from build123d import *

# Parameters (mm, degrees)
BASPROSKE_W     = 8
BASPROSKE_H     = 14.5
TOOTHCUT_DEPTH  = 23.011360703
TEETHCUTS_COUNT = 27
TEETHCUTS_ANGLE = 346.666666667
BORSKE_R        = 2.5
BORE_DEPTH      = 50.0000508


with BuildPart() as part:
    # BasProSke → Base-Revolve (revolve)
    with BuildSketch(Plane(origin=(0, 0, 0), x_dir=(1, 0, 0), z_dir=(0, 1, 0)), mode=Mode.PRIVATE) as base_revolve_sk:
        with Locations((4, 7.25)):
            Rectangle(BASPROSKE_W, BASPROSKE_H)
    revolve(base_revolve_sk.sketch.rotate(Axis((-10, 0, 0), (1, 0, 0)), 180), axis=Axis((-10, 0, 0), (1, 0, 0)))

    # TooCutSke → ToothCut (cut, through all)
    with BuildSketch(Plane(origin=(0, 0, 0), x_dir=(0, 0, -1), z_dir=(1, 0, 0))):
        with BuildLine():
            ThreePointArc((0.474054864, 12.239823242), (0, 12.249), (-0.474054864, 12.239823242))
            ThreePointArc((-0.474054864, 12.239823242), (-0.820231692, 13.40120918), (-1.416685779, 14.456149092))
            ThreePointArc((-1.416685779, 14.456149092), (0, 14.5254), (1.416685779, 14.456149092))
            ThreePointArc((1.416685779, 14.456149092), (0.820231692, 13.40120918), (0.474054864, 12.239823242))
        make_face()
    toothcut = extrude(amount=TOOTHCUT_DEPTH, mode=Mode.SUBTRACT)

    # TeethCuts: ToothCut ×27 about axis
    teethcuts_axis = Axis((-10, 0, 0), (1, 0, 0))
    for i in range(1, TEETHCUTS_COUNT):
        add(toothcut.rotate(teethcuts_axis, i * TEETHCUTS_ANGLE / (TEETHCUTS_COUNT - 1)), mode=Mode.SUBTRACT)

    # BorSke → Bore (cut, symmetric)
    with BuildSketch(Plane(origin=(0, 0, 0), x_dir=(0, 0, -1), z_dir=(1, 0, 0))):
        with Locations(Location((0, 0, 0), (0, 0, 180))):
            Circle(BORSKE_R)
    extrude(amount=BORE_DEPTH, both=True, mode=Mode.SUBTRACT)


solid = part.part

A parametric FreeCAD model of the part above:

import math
import FreeCAD as App
import Part
import Sketcher
Q = App.Units.Quantity


def add_polygon(sketch, points):
    """Adds a closed chain of lines whose ends are joined by coincident constraints."""
    first, n = sketch.GeometryCount, len(points)
    for a, b in zip(points, points[1:] + points[:1]):
        sketch.addGeometry(Part.LineSegment(App.Vector(*a, 0), App.Vector(*b, 0)), False)
    for i in range(n):
        sketch.addConstraint(Sketcher.Constraint("Coincident", first + i, 2, first + (i + 1) % n, 1))

doc = App.newDocument("Part")
body = doc.addObject("PartDesign::Body", "Body")

# Sketch on XZ plane
sketch1 = body.newObject("Sketcher::SketchObject", "Sketch")
sketch1.AttachmentSupport = (doc.getObject("XZ_Plane"), [""])
sketch1.MapMode = "FlatFace"
add_polygon(sketch1, [(0, -14), (0, 0), (8, 0), (8, -14)])  # lines 0-3
sketch1.addConstraint(Sketcher.Constraint("Vertical", 0))
sketch1.addConstraint(Sketcher.Constraint("Horizontal", 1))
sketch1.addConstraint(Sketcher.Constraint("Vertical", 2))
sketch1.addConstraint(Sketcher.Constraint("Horizontal", 3))
sketch1.addConstraint(Sketcher.Constraint("Coincident", 0, 2, -1, 1))
sketch1.addConstraint(Sketcher.Constraint("DistanceX", 1, 1, 1, 2, Q("8 mm")))
sketch1.addConstraint(Sketcher.Constraint("DistanceY", 0, 1, 0, 2, Q("14.5 mm")))
revolution = body.newObject("PartDesign::Revolution", "Revolution")
revolution.Profile = sketch1
revolution.ReferenceAxis = (sketch1, ["H_Axis"])
revolution.Angle = 360

# Sketch on YZ plane
sketch2 = body.newObject("Sketcher::SketchObject", "Sketch001")
sketch2.AttachmentSupport = (doc.getObject("YZ_Plane"), [""])
sketch2.MapMode = "FlatFace"
sketch2.addGeometry(Part.ArcOfCircle(Part.Circle(App.Vector(0, 0, 0), App.Vector(0, 0, 1), 12.2), math.radians(-2.22), math.radians(2.22)), False)
sketch2.addGeometry(Part.ArcOfCircle(Part.Circle(App.Vector(11.3, -5.8, 0), App.Vector(0, 0, 1), 5.4), math.radians(54), math.radians(80)), False)
sketch2.addGeometry(Part.ArcOfCircle(Part.Circle(App.Vector(0, 0, 0), App.Vector(0, 0, 1), 14.5), math.radians(-5.6), math.radians(5.6)), False)
sketch2.addGeometry(Part.ArcOfCircle(Part.Circle(App.Vector(11.3, 5.8, 0), App.Vector(0, 0, 1), 5.4), math.radians(-80), math.radians(-54)), False)
sketch2.addConstraint(Sketcher.Constraint("Coincident", 0, 1, 1, 2))
sketch2.addConstraint(Sketcher.Constraint("Coincident", 1, 1, 2, 1))
sketch2.addConstraint(Sketcher.Constraint("Coincident", 2, 2, 3, 2))
sketch2.addConstraint(Sketcher.Constraint("Coincident", 3, 1, 0, 2))
sketch2.addConstraint(Sketcher.Constraint("Coincident", 0, 3, -1, 1))
sketch2.addConstraint(Sketcher.Constraint("Coincident", 2, 3, -1, 1))
sketch2.addConstraint(Sketcher.Constraint("Equal", 1, 3))
sketch2.addConstraint(Sketcher.Constraint("Symmetric", 1, 3, 3, 3, -1))
sketch2.addConstraint(Sketcher.Constraint("Radius", 1, Q("5.4 mm")))
sketch2.addConstraint(Sketcher.Constraint("Radius", 0, Q("12.249001 mm")))
sketch2.addConstraint(Sketcher.Constraint("Radius", 2, Q("14.5254 mm")))
sketch2.addConstraint(Sketcher.Constraint("DistanceY", 1, 3, -1, 1, Q("5.78946 mm")))
sketch2.addConstraint(Sketcher.Constraint("DistanceX", -1, 1, 1, 1, Q("14.456149 mm")))
pocket1 = body.newObject("PartDesign::Pocket", "Pocket")
pocket1.Profile = sketch2
pocket1.Type = "ThroughAll"
pocket1.Reversed = True
doc.recompute()

polarpattern = body.newObject("PartDesign::PolarPattern", "PolarPattern")
polarpattern.Originals = [pocket1]
polarpattern.Axis = (doc.getObject("X_Axis"), [""])
polarpattern.Angle = 360
polarpattern.Occurrences = 27
body.Tip = polarpattern

# Sketch on YZ plane
sketch3 = body.newObject("Sketcher::SketchObject", "Sketch002")
sketch3.AttachmentSupport = (doc.getObject("YZ_Plane"), [""])
sketch3.MapMode = "FlatFace"
sketch3.addGeometry(Part.Circle(App.Vector(0, 0, 0), App.Vector(0, 0, 1), 2.5), False)
sketch3.addConstraint(Sketcher.Constraint("Coincident", 0, 3, -1, 1))
sketch3.addConstraint(Sketcher.Constraint("Diameter", 0, Q("5 mm")))
pocket2 = body.newObject("PartDesign::Pocket", "Pocket001")
pocket2.Profile = sketch3
pocket2.Length = 100.000102
pocket2.Midplane = True

doc.recompute()
